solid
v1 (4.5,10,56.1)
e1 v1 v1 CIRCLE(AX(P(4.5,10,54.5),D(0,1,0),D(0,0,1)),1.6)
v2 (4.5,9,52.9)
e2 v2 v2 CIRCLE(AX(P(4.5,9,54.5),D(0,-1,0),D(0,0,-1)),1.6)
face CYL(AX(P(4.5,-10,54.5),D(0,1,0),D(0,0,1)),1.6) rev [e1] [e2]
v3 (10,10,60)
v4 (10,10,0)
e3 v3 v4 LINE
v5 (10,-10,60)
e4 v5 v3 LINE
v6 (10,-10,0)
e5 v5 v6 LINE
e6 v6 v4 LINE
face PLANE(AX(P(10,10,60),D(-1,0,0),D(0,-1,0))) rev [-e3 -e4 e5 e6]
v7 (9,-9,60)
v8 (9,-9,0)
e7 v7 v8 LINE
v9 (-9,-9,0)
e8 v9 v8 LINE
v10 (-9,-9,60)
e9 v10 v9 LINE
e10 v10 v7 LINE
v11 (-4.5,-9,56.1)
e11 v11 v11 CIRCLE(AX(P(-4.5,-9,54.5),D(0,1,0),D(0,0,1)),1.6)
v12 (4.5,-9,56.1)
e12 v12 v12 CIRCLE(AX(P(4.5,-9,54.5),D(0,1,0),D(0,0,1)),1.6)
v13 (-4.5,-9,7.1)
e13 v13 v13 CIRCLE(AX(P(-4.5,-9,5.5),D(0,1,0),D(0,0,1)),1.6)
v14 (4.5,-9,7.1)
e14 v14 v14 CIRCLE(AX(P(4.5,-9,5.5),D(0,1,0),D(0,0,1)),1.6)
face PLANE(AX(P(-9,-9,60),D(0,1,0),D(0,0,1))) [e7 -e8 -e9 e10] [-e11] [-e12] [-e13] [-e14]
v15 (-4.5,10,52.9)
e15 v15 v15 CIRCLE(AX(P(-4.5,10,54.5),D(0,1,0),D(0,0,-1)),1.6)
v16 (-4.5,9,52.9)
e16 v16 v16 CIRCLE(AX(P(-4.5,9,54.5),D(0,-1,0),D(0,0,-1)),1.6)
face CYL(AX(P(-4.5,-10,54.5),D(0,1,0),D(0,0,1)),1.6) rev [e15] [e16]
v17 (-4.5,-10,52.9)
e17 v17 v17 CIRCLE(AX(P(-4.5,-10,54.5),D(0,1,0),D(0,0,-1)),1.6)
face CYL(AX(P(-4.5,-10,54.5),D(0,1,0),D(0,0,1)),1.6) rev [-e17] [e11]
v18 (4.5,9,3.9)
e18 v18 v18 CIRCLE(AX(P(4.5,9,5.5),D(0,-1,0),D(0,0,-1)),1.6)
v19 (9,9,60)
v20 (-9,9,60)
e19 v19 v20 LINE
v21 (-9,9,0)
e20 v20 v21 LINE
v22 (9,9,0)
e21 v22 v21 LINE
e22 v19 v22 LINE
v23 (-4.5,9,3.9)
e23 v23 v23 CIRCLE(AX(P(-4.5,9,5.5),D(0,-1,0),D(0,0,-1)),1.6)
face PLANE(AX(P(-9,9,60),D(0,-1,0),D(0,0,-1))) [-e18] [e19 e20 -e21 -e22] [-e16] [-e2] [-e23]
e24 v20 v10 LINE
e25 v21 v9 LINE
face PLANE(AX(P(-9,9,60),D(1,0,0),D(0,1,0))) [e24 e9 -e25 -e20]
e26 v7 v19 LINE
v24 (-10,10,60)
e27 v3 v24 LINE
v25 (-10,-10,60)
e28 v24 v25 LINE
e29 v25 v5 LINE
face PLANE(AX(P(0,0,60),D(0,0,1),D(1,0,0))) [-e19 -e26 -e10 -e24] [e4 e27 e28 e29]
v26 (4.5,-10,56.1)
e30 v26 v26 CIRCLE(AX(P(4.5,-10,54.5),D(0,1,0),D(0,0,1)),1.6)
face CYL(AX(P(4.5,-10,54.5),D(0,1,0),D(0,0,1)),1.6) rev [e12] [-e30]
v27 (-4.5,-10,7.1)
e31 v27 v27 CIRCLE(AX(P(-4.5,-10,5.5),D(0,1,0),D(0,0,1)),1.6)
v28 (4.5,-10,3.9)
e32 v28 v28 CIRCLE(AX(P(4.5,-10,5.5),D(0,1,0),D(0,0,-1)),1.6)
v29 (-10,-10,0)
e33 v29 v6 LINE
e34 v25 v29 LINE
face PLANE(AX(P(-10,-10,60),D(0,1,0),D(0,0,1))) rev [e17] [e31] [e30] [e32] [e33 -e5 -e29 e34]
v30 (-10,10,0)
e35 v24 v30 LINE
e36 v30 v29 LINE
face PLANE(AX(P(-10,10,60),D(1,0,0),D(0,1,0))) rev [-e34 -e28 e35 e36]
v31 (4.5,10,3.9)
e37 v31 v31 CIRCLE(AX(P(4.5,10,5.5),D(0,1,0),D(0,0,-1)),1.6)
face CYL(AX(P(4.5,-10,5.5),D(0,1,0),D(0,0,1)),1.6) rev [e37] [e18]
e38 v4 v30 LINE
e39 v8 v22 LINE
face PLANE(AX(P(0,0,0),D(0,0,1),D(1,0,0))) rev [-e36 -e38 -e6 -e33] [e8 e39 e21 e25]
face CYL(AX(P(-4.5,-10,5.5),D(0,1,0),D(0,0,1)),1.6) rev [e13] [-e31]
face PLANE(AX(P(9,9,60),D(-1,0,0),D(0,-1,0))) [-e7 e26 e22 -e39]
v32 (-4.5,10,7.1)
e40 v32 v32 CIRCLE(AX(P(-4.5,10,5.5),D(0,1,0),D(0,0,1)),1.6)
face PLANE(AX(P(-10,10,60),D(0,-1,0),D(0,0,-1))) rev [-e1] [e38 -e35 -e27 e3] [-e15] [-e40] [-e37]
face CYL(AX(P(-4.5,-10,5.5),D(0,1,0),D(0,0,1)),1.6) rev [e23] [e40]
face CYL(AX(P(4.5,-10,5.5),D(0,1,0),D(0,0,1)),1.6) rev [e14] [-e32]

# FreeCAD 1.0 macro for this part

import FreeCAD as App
import Part
import Sketcher

doc = App.newDocument("Part")
body = doc.addObject("PartDesign::Body", "Body")

# Sketch on XY plane
sketch1 = body.newObject("Sketcher::SketchObject", "Sketch")
sketch1.AttachmentSupport = (doc.getObject("XY_Plane"), [""])
sketch1.MapMode = "FlatFace"
sketch1.addGeometry([
    Part.LineSegment(App.Vector(-10, 10, 0), App.Vector(-10, -10, 0)),  # 0
    Part.LineSegment(App.Vector(-10, -10, 0), App.Vector(10, -10, 0)),  # 1
    Part.LineSegment(App.Vector(10, -10, 0), App.Vector(10, 10, 0)),  # 2
    Part.LineSegment(App.Vector(10, 10, 0), App.Vector(-10, 10, 0)),  # 3
    Part.LineSegment(App.Vector(9, -9, 0), App.Vector(-9, -9, 0)),  # 4
    Part.LineSegment(App.Vector(-9, -9, 0), App.Vector(-9, 9, 0)),  # 5
    Part.LineSegment(App.Vector(-9, 9, 0), App.Vector(9, 9, 0)),  # 6
    Part.LineSegment(App.Vector(9, 9, 0), App.Vector(9, -9, 0)),  # 7
], False)
sketch1.addConstraint([
    Sketcher.Constraint("Coincident", 0, 2, 1, 1),
    Sketcher.Constraint("Coincident", 1, 2, 2, 1),
    Sketcher.Constraint("Coincident", 2, 2, 3, 1),
    Sketcher.Constraint("Coincident", 3, 2, 0, 1),
    Sketcher.Constraint("Coincident", 4, 2, 5, 1),
    Sketcher.Constraint("Coincident", 5, 2, 6, 1),
    Sketcher.Constraint("Coincident", 6, 2, 7, 1),
    Sketcher.Constraint("Coincident", 7, 2, 4, 1),
    Sketcher.Constraint("Vertical", 0),
    Sketcher.Constraint("Horizontal", 1),
    Sketcher.Constraint("Vertical", 2),
    Sketcher.Constraint("Horizontal", 3),
    Sketcher.Constraint("Horizontal", 4),
    Sketcher.Constraint("Vertical", 5),
    Sketcher.Constraint("Horizontal", 6),
    Sketcher.Constraint("Vertical", 7),
    Sketcher.Constraint("Symmetric", 0, 2, 2, 2, -1, 1),
    Sketcher.Constraint("Symmetric", 4, 2, 6, 2, -1, 1),
    Sketcher.Constraint("Equal", 3, 0),
    Sketcher.Constraint("Equal", 6, 5),
    Sketcher.Constraint("DistanceX", 1, 1, 1, 2, 20.0),
    Sketcher.Constraint("DistanceX", 4, 2, 4, 1, 18.0),
])
pad1 = body.newObject("PartDesign::Pad", "Pad")
pad1.Profile = sketch1
pad1.Length = 60

# Sketch on XZ plane
sketch2 = body.newObject("Sketcher::SketchObject", "Sketch001")
sketch2.AttachmentSupport = (doc.getObject("XZ_Plane"), [""])
sketch2.MapMode = "FlatFace"
sketch2.AttachmentOffset = App.Placement(App.Vector(0, 0, -10), App.Rotation())
sketch2.addGeometry([
    Part.Circle(App.Vector(-4.5, 5.5, 0), App.Vector(0, 0, 1), 1.6),
    Part.Circle(App.Vector(4.5, 5.5, 0), App.Vector(0, 0, 1), 1.6),
    Part.Circle(App.Vector(4.5, 54.5, 0), App.Vector(0, 0, 1), 1.6),
    Part.Circle(App.Vector(-4.5, 54.5, 0), App.Vector(0, 0, 1), 1.6),
], False)
sketch2.addConstraint([
    Sketcher.Constraint("Equal", 0, 1),
    Sketcher.Constraint("Equal", 1, 2),
    Sketcher.Constraint("Equal", 2, 3),
    Sketcher.Constraint("Symmetric", 0, 3, 1, 3, -2),
    Sketcher.Constraint("Symmetric", 2, 3, 3, 3, -2),
    Sketcher.Constraint("Vertical", 1, 3, 2, 3),
    Sketcher.Constraint("Diameter", 0, 3.2),
    Sketcher.Constraint("DistanceX", 0, 3, 1, 3, 9.0),
    Sketcher.Constraint("DistanceY", 1, 3, 2, 3, 49.0),
    Sketcher.Constraint("DistanceY", -1, 1, 0, 3, 5.5),
])
pocket1 = body.newObject("PartDesign::Pocket", "Pocket")
pocket1.Profile = sketch2
pocket1.Type = "ThroughAll"
pocket1.Reversed = True

doc.recompute()
